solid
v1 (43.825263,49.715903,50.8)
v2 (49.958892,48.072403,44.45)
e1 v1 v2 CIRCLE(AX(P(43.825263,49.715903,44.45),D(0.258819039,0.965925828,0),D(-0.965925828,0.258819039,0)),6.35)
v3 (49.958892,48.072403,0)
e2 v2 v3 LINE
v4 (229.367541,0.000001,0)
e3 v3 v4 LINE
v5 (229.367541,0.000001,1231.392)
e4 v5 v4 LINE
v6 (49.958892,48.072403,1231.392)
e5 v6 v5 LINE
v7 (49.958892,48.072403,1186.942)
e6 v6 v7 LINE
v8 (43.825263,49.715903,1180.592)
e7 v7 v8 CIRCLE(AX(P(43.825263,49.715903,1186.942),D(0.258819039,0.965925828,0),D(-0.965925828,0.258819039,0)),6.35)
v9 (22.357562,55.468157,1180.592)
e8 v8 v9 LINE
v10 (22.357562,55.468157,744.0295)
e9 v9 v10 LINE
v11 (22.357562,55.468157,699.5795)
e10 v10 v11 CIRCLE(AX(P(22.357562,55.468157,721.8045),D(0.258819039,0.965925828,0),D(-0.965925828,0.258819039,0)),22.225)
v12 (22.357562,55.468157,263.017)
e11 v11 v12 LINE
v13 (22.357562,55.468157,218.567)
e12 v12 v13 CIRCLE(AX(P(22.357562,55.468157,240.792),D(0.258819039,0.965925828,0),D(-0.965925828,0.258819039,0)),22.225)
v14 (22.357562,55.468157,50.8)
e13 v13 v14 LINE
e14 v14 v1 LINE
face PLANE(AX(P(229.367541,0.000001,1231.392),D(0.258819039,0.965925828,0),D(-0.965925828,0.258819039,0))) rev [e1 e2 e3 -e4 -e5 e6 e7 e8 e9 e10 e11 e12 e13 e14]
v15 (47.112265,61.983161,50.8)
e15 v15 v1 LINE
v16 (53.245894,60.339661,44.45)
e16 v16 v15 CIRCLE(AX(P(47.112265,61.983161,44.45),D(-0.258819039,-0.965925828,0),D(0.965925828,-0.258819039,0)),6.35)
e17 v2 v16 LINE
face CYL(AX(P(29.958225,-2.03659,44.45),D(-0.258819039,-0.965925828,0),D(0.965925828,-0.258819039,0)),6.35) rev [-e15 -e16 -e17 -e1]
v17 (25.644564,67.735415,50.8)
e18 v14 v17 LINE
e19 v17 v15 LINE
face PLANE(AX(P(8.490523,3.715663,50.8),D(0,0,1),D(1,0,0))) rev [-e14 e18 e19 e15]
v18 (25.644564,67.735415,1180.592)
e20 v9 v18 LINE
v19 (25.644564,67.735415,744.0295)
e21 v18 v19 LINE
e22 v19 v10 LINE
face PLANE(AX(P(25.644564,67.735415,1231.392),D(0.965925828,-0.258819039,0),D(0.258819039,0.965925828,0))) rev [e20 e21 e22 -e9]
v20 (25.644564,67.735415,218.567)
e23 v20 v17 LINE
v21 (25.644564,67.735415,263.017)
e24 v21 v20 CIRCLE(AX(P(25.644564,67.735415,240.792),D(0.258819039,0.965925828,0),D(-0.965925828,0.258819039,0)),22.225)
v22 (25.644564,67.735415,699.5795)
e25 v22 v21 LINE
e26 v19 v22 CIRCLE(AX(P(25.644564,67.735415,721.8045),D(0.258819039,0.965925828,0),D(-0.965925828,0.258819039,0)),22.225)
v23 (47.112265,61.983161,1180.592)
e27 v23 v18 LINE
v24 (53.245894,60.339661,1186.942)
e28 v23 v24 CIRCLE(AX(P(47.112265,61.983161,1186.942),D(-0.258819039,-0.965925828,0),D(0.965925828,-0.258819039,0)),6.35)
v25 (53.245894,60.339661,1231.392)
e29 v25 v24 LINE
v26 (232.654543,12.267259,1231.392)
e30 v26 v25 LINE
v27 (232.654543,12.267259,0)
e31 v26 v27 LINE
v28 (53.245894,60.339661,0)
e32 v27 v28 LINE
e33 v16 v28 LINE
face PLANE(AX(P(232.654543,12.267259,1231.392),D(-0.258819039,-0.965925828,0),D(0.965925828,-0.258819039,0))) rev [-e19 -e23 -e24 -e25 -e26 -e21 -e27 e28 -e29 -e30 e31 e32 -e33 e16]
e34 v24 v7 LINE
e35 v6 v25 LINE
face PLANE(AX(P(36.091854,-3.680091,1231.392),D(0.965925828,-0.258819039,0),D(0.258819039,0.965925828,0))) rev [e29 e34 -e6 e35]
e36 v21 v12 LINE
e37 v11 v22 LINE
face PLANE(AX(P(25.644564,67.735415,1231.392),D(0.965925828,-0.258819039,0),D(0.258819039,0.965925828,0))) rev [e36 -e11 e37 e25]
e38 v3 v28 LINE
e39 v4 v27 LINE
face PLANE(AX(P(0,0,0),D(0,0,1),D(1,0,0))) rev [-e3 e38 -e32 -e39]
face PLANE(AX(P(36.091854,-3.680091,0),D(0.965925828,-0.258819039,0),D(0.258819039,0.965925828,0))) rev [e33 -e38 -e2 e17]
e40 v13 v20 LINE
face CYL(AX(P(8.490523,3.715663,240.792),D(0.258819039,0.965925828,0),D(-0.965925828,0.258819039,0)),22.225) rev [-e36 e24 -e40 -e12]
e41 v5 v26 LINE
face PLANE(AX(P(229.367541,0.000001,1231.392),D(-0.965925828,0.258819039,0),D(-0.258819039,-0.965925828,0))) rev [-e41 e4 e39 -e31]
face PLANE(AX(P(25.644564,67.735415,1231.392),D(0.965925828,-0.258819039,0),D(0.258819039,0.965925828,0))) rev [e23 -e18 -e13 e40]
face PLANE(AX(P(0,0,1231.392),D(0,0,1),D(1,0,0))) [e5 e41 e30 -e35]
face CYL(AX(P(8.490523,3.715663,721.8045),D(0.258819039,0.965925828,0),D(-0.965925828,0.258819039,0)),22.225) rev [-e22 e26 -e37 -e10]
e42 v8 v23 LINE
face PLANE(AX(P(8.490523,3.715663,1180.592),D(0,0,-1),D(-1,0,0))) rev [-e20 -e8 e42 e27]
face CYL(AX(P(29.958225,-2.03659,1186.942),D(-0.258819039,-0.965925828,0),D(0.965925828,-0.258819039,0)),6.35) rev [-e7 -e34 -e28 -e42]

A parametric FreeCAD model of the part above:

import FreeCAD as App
import Part
import Sketcher

V = App.Vector
Q = App.Units.Quantity


def edges_at(feature, points):
    """Names of the edges that pass closest to the given points."""
    edges = feature.Shape.Edges
    near = lambda p: min(range(len(edges)), key=lambda i: edges[i].distToShape(Part.Vertex(*p))[0])
    return sorted({f"Edge{near(p) + 1}" for p in points})

doc = App.newDocument("Part")
body = doc.addObject("PartDesign::Body", "Body")

# Sketch on XY plane
sketch1 = doc.addObject("Sketcher::SketchObject", "Sketch")
body.addObject(sketch1)
sketch1.AttachmentSupport = (doc.XY_Plane, [""])
sketch1.MapMode = "FlatFace"
sketch1.addGeometry(Part.LineSegment(V(232.654543, 12.267259, 0), V(25.644564, 67.735415, 0)), False)
sketch1.addGeometry(Part.LineSegment(V(25.644564, 67.735415, 0), V(22.357562, 55.468157, 0)), False)
sketch1.addGeometry(Part.LineSegment(V(22.357562, 55.468157, 0), V(229.367541, 0.000001, 0)), False)
sketch1.addGeometry(Part.LineSegment(V(229.367541, 0.000001, 0), V(232.654543, 12.267259, 0)), False)
sketch1.addConstraint(Sketcher.Constraint("Coincident", 0, 2, 1, 1))
sketch1.addConstraint(Sketcher.Constraint("Coincident", 1, 2, 2, 1))
sketch1.addConstraint(Sketcher.Constraint("Coincident", 2, 2, 3, 1))
sketch1.addConstraint(Sketcher.Constraint("Coincident", 3, 2, 0, 1))
sketch1.addConstraint(Sketcher.Constraint("PointOnObject", 2, 2, -1))
sketch1.addConstraint(Sketcher.Constraint("Perpendicular", 0, 1))
sketch1.addConstraint(Sketcher.Constraint("Perpendicular", 1, 2))
sketch1.addConstraint(Sketcher.Constraint("Perpendicular", 2, 3))
sketch1.addConstraint(Sketcher.Constraint("Angle", 0, Q("165 deg")))
sketch1.addConstraint(Sketcher.Constraint("Distance", 1, Q("0.5 in")))
sketch1.addConstraint(Sketcher.Constraint("Distance", 0, Q("8.4375 in")))
sketch1.addConstraint(Sketcher.Constraint("DistanceX", -1, 1, 1, 2, 22.357562))
pad1 = doc.addObject("PartDesign::Pad", "Pad")
body.addObject(pad1)
pad1.Profile = sketch1
pad1.Length = Q("48.48 in")

# Sketch on an angled plane
sketch2 = doc.addObject("Sketcher::SketchObject", "Sketch001")
body.addObject(sketch2)
sketch2.Placement = App.Placement(V(18.651713, 69.609143, 0), App.Rotation(V(0.965925828, -0.258819039, 0), V(0, 0, -1), V(0.258819039, 0.965925828, 0), "ZXY"))
sketch2.addGeometry(Part.Circle(V(7.239531, -721.8045, 0), V(0, 0, 1), 22.225), False)
sketch2.addGeometry(Part.Circle(V(7.239531, -240.792, 0), V(0, 0, 1), 22.225), False)
sketch2.addGeometry(Part.LineSegment(V(7.239531, -1180.592, 0), V(7.239531, -1231.392, 0)), False)
sketch2.addGeometry(Part.LineSegment(V(7.239531, -1231.392, 0), V(35.814531, -1231.392, 0)), False)
sketch2.addGeometry(Part.LineSegment(V(35.814531, -1231.392, 0), V(35.814531, -1180.592, 0)), False)
sketch2.addGeometry(Part.LineSegment(V(35.814531, -1180.592, 0), V(7.239531, -1180.592, 0)), False)
sketch2.addGeometry(Part.LineSegment(V(7.239531, 0, 0), V(7.239531, -50.8, 0)), False)
sketch2.addGeometry(Part.LineSegment(V(7.239531, -50.8, 0), V(35.814531, -50.8, 0)), False)
sketch2.addGeometry(Part.LineSegment(V(35.814531, -50.8, 0), V(35.814531, 0, 0)), False)
sketch2.addGeometry(Part.LineSegment(V(35.814531, 0, 0), V(7.239531, 0, 0)), False)
sketch2.addConstraint(Sketcher.Constraint("Coincident", 2, 2, 3, 1))
sketch2.addConstraint(Sketcher.Constraint("Coincident", 3, 2, 4, 1))
sketch2.addConstraint(Sketcher.Constraint("Coincident", 4, 2, 5, 1))
sketch2.addConstraint(Sketcher.Constraint("Coincident", 5, 2, 2, 1))
sketch2.addConstraint(Sketcher.Constraint("Coincident", 6, 2, 7, 1))
sketch2.addConstraint(Sketcher.Constraint("Coincident", 7, 2, 8, 1))
sketch2.addConstraint(Sketcher.Constraint("Coincident", 8, 2, 9, 1))
sketch2.addConstraint(Sketcher.Constraint("Coincident", 9, 2, 6, 1))
sketch2.addConstraint(Sketcher.Constraint("Vertical", 2))
sketch2.addConstraint(Sketcher.Constraint("Horizontal", 3))
sketch2.addConstraint(Sketcher.Constraint("Vertical", 4))
sketch2.addConstraint(Sketcher.Constraint("Horizontal", 5))
sketch2.addConstraint(Sketcher.Constraint("Vertical", 6))
sketch2.addConstraint(Sketcher.Constraint("Horizontal", 7))
sketch2.addConstraint(Sketcher.Constraint("Vertical", 8))
sketch2.addConstraint(Sketcher.Constraint("Horizontal", 9))
sketch2.addConstraint(Sketcher.Constraint("Equal", 0, 1))
sketch2.addConstraint(Sketcher.Constraint("PointOnObject", 8, 2, -1))
sketch2.addConstraint(Sketcher.Constraint("Vertical", 0, 3, 1, 3))
sketch2.addConstraint(Sketcher.Constraint("Vertical", 1, 3, 2, 2))
sketch2.addConstraint(Sketcher.Constraint("Vertical", 5, 2, 6, 2))
sketch2.addConstraint(Sketcher.Constraint("Vertical", 4, 2, 7, 2))
sketch2.addConstraint(Sketcher.Constraint("Equal", 4, 6))
sketch2.addConstraint(Sketcher.Constraint("Diameter", 0, Q("1.75 in")))
sketch2.addConstraint(Sketcher.Constraint("DistanceY", 2, 2, 2, 1, Q("2 in")))
sketch2.addConstraint(Sketcher.Constraint("DistanceY", 2, 2, 1, 3, Q("39 in")))
sketch2.addConstraint(Sketcher.Constraint("DistanceX", 3, 1, 3, 2, Q("1.125 in")))
sketch2.addConstraint(Sketcher.Constraint("DistanceY", 1, 3, -1, 1, Q("9.48 in")))
sketch2.addConstraint(Sketcher.Constraint("DistanceY", 0, 3, 1, 3, Q("18.9375 in")))
sketch2.addConstraint(Sketcher.Constraint("DistanceX", -1, 1, 0, 3, 7.239531))
pocket1 = doc.addObject("PartDesign::Pocket", "Pocket")
body.addObject(pocket1)
pocket1.Profile = sketch2
pocket1.Type = "ThroughAll"
doc.recompute()

fillet = doc.addObject("PartDesign::Fillet", "Fillet")
body.addObject(fillet)
fillet.Base = (pocket1, edges_at(pocket1, [(51.602, 54.206, 1180.592), (51.602, 54.206, 50.8)]))
fillet.Radius = Q("0.25 in")

doc.recompute()
